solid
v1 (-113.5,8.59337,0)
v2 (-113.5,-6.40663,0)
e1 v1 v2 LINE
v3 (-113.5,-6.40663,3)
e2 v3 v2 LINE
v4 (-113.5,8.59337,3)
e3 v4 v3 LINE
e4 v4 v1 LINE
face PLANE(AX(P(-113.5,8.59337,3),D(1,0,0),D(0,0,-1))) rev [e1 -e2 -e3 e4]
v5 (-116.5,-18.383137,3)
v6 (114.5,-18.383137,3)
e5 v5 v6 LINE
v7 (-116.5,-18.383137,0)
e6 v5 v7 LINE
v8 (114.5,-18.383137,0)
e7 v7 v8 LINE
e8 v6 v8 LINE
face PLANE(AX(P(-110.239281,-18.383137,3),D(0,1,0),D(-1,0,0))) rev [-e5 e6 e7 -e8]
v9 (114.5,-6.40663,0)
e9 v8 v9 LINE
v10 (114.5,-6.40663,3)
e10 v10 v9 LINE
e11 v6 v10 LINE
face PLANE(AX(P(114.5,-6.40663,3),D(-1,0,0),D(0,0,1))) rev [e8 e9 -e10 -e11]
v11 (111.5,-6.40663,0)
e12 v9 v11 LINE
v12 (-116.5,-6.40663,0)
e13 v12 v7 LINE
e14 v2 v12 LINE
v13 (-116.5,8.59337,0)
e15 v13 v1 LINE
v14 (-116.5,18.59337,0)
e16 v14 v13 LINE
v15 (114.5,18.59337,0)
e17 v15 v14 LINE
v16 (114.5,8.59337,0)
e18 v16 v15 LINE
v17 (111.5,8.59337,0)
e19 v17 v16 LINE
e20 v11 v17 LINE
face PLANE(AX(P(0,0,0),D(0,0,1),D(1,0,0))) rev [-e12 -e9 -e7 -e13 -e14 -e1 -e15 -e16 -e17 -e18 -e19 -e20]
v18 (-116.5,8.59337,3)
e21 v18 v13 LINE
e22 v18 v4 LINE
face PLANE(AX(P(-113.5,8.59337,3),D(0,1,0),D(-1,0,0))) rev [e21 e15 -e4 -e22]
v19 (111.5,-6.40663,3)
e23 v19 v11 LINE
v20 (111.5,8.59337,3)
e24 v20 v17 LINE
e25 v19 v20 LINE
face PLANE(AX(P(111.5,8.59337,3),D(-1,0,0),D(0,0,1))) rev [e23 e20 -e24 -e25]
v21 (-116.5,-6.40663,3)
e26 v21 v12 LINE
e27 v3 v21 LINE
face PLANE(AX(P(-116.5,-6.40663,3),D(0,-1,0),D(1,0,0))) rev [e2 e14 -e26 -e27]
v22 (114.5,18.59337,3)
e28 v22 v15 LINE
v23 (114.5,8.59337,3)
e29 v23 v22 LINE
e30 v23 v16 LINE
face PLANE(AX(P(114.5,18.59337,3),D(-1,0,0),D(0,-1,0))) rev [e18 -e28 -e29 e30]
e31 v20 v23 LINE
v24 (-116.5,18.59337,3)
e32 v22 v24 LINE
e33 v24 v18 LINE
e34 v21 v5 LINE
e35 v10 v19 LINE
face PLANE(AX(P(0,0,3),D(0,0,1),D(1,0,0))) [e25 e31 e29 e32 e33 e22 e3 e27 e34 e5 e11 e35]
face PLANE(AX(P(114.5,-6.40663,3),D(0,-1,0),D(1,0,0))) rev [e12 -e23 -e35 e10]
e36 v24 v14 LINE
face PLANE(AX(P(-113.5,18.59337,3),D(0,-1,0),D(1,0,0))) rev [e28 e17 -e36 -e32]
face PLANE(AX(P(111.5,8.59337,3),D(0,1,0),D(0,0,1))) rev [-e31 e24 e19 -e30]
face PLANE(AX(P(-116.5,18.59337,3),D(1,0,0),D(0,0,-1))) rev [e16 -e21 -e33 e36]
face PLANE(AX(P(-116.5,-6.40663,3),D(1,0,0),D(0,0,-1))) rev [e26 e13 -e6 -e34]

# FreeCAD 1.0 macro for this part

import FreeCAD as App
import Part
import Sketcher
Q = App.Units.Quantity


def add_polygon(sketch, points):
    """Adds a closed chain of lines whose ends are joined by coincident constraints."""
    first, n = sketch.GeometryCount, len(points)
    for a, b in zip(points, points[1:] + points[:1]):
        sketch.addGeometry(Part.LineSegment(App.Vector(*a, 0), App.Vector(*b, 0)), False)
    for i in range(n):
        sketch.addConstraint(Sketcher.Constraint("Coincident", first + i, 2, first + (i + 1) % n, 1))

doc = App.newDocument("Part")
body = doc.addObject("PartDesign::Body", "Body")

# Sketch on XY plane
sketch1 = body.newObject("Sketcher::SketchObject", "Sketch")
sketch1.AttachmentSupport = (doc.getObject("XY_Plane"), [""])
sketch1.MapMode = "FlatFace"
add_polygon(sketch1, [(-116.5, 8.6), (-113.5, 8.6), (-113.5, -6.4), (-116.5, -6.4), (-116.5, -18.4), (114.5, -18.4), (114.5, -6.4), (111.5, -6.4), (111.5, 8.6), (114.5, 8.6), (114.5, 18.6), (-116.5, 18.6)])  # lines 0-11
sketch1.addConstraint([
    Sketcher.Constraint("Horizontal", 0),
    Sketcher.Constraint("Vertical", 1),
    Sketcher.Constraint("Horizontal", 2),
    Sketcher.Constraint("Vertical", 3),
    Sketcher.Constraint("Horizontal", 4),
    Sketcher.Constraint("Vertical", 5),
    Sketcher.Constraint("Horizontal", 6),
    Sketcher.Constraint("Vertical", 7),
    Sketcher.Constraint("Horizontal", 8),
    Sketcher.Constraint("Vertical", 9),
    Sketcher.Constraint("Horizontal", 10),
    Sketcher.Constraint("Vertical", 11),
    Sketcher.Constraint("Horizontal", 2, 2, 5, 2),
    Sketcher.Constraint("Horizontal", 0, 2, 7, 2),
    Sketcher.Constraint("Vertical", 5, 2, 8, 2),
    Sketcher.Constraint("Vertical", 3, 2, 10, 2),
    Sketcher.Constraint("Equal", 2, 6),
    Sketcher.Constraint("DistanceX", 0, 1, 0, 2, Q("3 mm")),
    Sketcher.Constraint("DistanceX", 4, 1, 4, 2, Q("231 mm")),
    Sketcher.Constraint("DistanceY", 1, 2, 1, 1, Q("15 mm")),
    Sketcher.Constraint("DistanceY", 9, 1, 9, 2, Q("10 mm")),
    Sketcher.Constraint("DistanceX", 0, 2, -1, 1, Q("113.5 mm")),
    Sketcher.Constraint("DistanceY", 3, 2, 3, 1, Q("11.976508 mm")),
    Sketcher.Constraint("DistanceY", -1, 1, 0, 2, Q("8.59337 mm")),
])
pad1 = body.newObject("PartDesign::Pad", "Pad")
pad1.Profile = sketch1
pad1.Length = 3

doc.recompute()
